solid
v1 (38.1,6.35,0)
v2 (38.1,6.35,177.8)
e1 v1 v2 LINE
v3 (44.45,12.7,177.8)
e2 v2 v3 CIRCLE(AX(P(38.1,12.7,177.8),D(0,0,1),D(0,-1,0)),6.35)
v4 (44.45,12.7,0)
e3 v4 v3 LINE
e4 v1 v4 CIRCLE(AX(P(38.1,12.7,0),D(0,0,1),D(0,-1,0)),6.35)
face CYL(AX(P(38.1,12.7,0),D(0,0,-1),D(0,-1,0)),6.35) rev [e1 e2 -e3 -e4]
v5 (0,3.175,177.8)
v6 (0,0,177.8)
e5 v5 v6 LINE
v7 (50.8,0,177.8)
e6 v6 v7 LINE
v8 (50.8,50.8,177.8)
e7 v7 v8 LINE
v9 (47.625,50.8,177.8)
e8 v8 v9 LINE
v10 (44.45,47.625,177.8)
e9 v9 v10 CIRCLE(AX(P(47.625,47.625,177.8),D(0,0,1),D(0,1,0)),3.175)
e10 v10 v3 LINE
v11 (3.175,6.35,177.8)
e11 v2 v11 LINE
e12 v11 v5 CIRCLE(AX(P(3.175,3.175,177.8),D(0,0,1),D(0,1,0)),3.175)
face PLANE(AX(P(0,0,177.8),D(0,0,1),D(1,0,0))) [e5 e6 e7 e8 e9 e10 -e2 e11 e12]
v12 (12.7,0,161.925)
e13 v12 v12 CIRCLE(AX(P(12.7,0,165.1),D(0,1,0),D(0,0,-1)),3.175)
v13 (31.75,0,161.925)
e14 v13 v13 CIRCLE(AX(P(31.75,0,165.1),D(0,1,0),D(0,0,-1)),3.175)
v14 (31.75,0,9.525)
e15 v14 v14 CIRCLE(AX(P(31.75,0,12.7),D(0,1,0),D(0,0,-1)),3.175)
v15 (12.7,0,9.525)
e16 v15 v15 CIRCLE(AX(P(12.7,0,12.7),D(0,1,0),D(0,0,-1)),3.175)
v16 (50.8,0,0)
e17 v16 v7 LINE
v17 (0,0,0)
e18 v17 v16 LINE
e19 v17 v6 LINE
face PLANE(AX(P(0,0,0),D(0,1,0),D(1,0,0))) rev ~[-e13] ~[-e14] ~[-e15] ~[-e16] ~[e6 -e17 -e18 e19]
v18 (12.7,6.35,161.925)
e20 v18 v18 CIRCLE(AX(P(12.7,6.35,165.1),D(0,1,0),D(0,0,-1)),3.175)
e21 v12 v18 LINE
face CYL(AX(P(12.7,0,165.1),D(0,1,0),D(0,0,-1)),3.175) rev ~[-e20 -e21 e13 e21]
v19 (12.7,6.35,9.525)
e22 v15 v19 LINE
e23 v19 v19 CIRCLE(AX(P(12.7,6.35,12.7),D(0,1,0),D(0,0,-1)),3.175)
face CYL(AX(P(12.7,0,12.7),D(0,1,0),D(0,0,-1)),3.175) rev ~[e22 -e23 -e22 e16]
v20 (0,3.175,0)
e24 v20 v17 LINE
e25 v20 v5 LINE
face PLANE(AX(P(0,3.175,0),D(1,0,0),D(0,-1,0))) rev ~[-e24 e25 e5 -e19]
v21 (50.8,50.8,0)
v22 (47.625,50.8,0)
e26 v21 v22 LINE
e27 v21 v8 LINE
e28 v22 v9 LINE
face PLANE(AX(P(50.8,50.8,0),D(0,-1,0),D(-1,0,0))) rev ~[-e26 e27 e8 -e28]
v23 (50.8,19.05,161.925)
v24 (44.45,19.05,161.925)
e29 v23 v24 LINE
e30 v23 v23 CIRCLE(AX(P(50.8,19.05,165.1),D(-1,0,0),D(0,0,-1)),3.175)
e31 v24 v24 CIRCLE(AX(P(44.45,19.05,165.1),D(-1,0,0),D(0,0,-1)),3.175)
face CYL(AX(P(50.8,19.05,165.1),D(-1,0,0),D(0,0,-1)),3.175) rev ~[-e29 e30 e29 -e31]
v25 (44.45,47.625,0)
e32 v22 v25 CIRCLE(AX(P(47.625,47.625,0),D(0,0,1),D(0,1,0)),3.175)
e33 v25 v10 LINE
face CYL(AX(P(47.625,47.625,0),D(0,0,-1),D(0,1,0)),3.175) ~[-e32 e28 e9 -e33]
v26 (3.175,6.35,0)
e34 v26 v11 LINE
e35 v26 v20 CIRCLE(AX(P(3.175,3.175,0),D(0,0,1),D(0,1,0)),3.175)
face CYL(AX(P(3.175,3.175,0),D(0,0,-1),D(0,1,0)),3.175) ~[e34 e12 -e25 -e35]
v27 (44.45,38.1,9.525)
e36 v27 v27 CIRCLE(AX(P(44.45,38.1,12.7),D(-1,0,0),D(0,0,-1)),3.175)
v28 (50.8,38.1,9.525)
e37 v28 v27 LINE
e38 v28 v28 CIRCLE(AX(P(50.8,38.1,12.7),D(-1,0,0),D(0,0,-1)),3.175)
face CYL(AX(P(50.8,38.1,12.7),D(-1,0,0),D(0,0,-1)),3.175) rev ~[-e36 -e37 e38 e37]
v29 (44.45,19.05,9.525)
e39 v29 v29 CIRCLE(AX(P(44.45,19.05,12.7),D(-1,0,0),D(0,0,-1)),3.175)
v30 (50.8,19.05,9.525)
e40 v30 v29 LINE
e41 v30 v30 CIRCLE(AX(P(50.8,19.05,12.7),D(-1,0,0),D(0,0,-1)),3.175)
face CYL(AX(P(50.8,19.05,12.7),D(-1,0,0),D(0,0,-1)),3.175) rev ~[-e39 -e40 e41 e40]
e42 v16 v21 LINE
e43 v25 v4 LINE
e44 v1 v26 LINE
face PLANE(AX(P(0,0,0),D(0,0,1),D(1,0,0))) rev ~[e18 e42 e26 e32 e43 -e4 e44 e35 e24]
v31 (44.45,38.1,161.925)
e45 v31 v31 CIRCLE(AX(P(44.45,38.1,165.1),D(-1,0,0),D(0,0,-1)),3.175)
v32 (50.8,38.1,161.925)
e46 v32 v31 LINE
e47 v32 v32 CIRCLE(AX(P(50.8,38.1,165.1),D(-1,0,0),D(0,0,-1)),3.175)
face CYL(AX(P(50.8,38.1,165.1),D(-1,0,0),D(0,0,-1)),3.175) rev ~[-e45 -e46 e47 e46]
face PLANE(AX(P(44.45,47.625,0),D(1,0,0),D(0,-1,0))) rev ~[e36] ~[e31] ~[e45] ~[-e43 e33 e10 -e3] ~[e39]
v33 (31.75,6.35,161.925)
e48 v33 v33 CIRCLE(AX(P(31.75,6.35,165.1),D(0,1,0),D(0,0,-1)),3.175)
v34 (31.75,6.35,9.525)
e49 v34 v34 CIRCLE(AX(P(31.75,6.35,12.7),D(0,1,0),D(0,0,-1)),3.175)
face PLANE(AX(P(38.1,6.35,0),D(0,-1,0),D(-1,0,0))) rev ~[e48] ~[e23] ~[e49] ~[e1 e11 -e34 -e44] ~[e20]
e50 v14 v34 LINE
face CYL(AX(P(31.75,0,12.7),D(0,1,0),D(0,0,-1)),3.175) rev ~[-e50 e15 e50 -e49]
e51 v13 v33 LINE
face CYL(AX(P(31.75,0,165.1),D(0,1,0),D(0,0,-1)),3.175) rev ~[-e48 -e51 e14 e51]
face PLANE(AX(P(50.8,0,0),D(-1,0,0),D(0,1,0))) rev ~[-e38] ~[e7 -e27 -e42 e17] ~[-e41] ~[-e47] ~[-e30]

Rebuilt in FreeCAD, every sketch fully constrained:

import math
import FreeCAD as App
import Part
import Sketcher
from FreeCAD import Vector
Q = App.Units.Quantity

doc = App.newDocument("Part")
params = doc.addObject("Spreadsheet::Sheet", "Params")
for row, (alias, value) in enumerate([
    ("sketch1_width", "2 in"),
    ("sketch1_radius", "0.25 in"),
    ("sketch1_radius2", "0.125 in"),
    ("sketch1_width2", "0.125 in"),
    ("pad1_length", "7 in"),
    ("sketch2_diameter", "0.25 in"),
    ("hole_diameter", "0.25 in"),
    ("sketch3_diameter", "0.25 in"),
    ("hole2_diameter", "0.25 in"),
], start=1):
    params.set(f"A{row}", alias)
    params.set(f"B{row}", "=" + value)
    params.setAlias(f"B{row}", alias)

body = doc.addObject("PartDesign::Body", "Body")

sketch1 = body.newObject("Sketcher::SketchObject", "Sketch")
sketch1.AttachmentSupport = (doc.getObject("XY_Plane"), [""])
sketch1.MapMode = "FlatFace"
sketch1.addGeometry([
    Part.LineSegment(Vector(0, 3.2, 0), Vector(0, 0, 0)),
    Part.LineSegment(Vector(0, 0, 0), Vector(50.8, 0, 0)),
    Part.LineSegment(Vector(50.8, 0, 0), Vector(50.8, 50.8, 0)),
    Part.LineSegment(Vector(50.8, 50.8, 0), Vector(47.6, 50.8, 0)),
    Part.ArcOfCircle(Part.Circle(Vector(47.6, 47.6, 0), Vector(0, 0, 1), 3.2), math.radians(90), math.radians(180)),
    Part.LineSegment(Vector(44.5, 47.6, 0), Vector(44.5, 12.7, 0)),
    Part.ArcOfCircle(Part.Circle(Vector(38.1, 12.7, 0), Vector(0, 0, 1), 6.3), math.radians(-90), math.radians(0)),
    Part.LineSegment(Vector(38.1, 6.3, 0), Vector(3.2, 6.3, 0)),
    Part.ArcOfCircle(Part.Circle(Vector(3.2, 3.2, 0), Vector(0, 0, 1), 3.2), math.radians(90), math.radians(180)),
], False)
sketch1.addConstraint([
    Sketcher.Constraint("Coincident", 0, 2, 1, 1),
    Sketcher.Constraint("Coincident", 1, 2, 2, 1),
    Sketcher.Constraint("Coincident", 2, 2, 3, 1),
    Sketcher.Constraint("Tangent", 3, 2, 4, 1),
    Sketcher.Constraint("Tangent", 4, 2, 5, 1),
    Sketcher.Constraint("Tangent", 5, 2, 6, 2),
    Sketcher.Constraint("Tangent", 6, 1, 7, 1),
    Sketcher.Constraint("Tangent", 7, 2, 8, 1),
    Sketcher.Constraint("Tangent", 8, 2, 0, 1),
    Sketcher.Constraint("Vertical", 0),
    Sketcher.Constraint("Horizontal", 1),
    Sketcher.Constraint("Vertical", 2),
    Sketcher.Constraint("Horizontal", 3),
    Sketcher.Constraint("Vertical", 5),
    Sketcher.Constraint("Horizontal", 7),
    Sketcher.Constraint("Coincident", 0, 2, -1, 1),
    Sketcher.Constraint("Equal", 4, 8),
    Sketcher.Constraint("Equal", 3, 0),
    Sketcher.Constraint("Equal", 1, 2),
    Sketcher.Constraint("DistanceX", 1, 1, 1, 2, Q("2 in")),
    Sketcher.Constraint("Radius", 6, Q("0.25 in")),
    Sketcher.Constraint("Radius", 4, Q("0.125 in")),
    Sketcher.Constraint("DistanceX", 3, 2, 3, 1, Q("0.125 in")),
])
sketch1.setExpression("Constraints[19]", "Params.sketch1_width")
sketch1.setExpression("Constraints[20]", "Params.sketch1_radius")
sketch1.setExpression("Constraints[21]", "Params.sketch1_radius2")
sketch1.setExpression("Constraints[22]", "Params.sketch1_width2")
pad1 = body.newObject("PartDesign::Pad", "Pad")
pad1.Profile = sketch1
pad1.setExpression("Length", "Params.pad1_length")

sketch2 = body.newObject("Sketcher::SketchObject", "Sketch001")
sketch2.AttachmentSupport = (doc.getObject("XZ_Plane"), [""])
sketch2.MapMode = "FlatFace"
sketch2.addGeometry([
    Part.Circle(Vector(12.7, 165.1, 0), Vector(0, 0, 1), 3.2),
    Part.Circle(Vector(31.8, 165.1, 0), Vector(0, 0, 1), 3.2),
    Part.Circle(Vector(12.7, 12.7, 0), Vector(0, 0, 1), 3.2),
    Part.Circle(Vector(31.8, 12.7, 0), Vector(0, 0, 1), 3.2),
], False)
sketch2.addConstraint([
    Sketcher.Constraint("Equal", 0, 1),
    Sketcher.Constraint("Equal", 1, 2),
    Sketcher.Constraint("Equal", 2, 3),
    Sketcher.Constraint("Horizontal", 0, 3, 1, 3),
    Sketcher.Constraint("Horizontal", 2, 3, 3, 3),
    Sketcher.Constraint("Vertical", 0, 3, 2, 3),
    Sketcher.Constraint("Vertical", 1, 3, 3, 3),
    Sketcher.Constraint("Diameter", 0, Q("0.25 in")),
    Sketcher.Constraint("DistanceY", 2, 3, 0, 3, Q("6 in")),
    Sketcher.Constraint("DistanceX", -1, 1, 0, 3, Q("0.5 in")),
    Sketcher.Constraint("DistanceY", -1, 1, 0, 3, Q("6.5 in")),
    Sketcher.Constraint("DistanceX", -1, 1, 1, 3, Q("1.25 in")),
])
sketch2.setExpression("Constraints[7]", "Params.sketch2_diameter")
doc.recompute()
hole = body.newObject("PartDesign::Hole", "Hole")
hole.Profile = sketch2
hole.ThreadType = "None"
hole.setExpression("Diameter", "Params.hole_diameter")
hole.DepthType = "ThroughAll"

sketch3 = body.newObject("Sketcher::SketchObject", "Sketch002")
sketch3.AttachmentSupport = (doc.getObject("YZ_Plane"), [""])
sketch3.MapMode = "FlatFace"
sketch3.AttachmentOffset = App.Placement(Vector(0, 0, 2 * 25.4), App.Rotation())
sketch3.addGeometry([
    Part.Circle(Vector(19.1, 165.1, 0), Vector(0, 0, 1), 3.2),
    Part.Circle(Vector(38.1, 165.1, 0), Vector(0, 0, 1), 3.2),
    Part.Circle(Vector(19.1, 12.7, 0), Vector(0, 0, 1), 3.2),
    Part.Circle(Vector(38.1, 12.7, 0), Vector(0, 0, 1), 3.2),
], False)
sketch3.addConstraint([
    Sketcher.Constraint("Equal", 0, 1),
    Sketcher.Constraint("Equal", 1, 2),
    Sketcher.Constraint("Equal", 2, 3),
    Sketcher.Constraint("Horizontal", 0, 3, 1, 3),
    Sketcher.Constraint("Horizontal", 2, 3, 3, 3),
    Sketcher.Constraint("Vertical", 0, 3, 2, 3),
    Sketcher.Constraint("Vertical", 1, 3, 3, 3),
    Sketcher.Constraint("Diameter", 0, Q("0.25 in")),
    Sketcher.Constraint("DistanceY", 2, 3, 0, 3, Q("6 in")),
    Sketcher.Constraint("DistanceY", -1, 1, 0, 3, Q("6.5 in")),
    Sketcher.Constraint("DistanceX", -1, 1, 1, 3, Q("1.5 in")),
    Sketcher.Constraint("DistanceX", -1, 1, 0, 3, Q("0.75 in")),
])
sketch3.setExpression("Constraints[7]", "Params.sketch3_diameter")
doc.recompute()
hole2 = body.newObject("PartDesign::Hole", "Hole001")
hole2.Profile = sketch3
hole2.ThreadType = "None"
hole2.setExpression("Diameter", "Params.hole2_diameter")
hole2.DepthType = "ThroughAll"

doc.recompute()
